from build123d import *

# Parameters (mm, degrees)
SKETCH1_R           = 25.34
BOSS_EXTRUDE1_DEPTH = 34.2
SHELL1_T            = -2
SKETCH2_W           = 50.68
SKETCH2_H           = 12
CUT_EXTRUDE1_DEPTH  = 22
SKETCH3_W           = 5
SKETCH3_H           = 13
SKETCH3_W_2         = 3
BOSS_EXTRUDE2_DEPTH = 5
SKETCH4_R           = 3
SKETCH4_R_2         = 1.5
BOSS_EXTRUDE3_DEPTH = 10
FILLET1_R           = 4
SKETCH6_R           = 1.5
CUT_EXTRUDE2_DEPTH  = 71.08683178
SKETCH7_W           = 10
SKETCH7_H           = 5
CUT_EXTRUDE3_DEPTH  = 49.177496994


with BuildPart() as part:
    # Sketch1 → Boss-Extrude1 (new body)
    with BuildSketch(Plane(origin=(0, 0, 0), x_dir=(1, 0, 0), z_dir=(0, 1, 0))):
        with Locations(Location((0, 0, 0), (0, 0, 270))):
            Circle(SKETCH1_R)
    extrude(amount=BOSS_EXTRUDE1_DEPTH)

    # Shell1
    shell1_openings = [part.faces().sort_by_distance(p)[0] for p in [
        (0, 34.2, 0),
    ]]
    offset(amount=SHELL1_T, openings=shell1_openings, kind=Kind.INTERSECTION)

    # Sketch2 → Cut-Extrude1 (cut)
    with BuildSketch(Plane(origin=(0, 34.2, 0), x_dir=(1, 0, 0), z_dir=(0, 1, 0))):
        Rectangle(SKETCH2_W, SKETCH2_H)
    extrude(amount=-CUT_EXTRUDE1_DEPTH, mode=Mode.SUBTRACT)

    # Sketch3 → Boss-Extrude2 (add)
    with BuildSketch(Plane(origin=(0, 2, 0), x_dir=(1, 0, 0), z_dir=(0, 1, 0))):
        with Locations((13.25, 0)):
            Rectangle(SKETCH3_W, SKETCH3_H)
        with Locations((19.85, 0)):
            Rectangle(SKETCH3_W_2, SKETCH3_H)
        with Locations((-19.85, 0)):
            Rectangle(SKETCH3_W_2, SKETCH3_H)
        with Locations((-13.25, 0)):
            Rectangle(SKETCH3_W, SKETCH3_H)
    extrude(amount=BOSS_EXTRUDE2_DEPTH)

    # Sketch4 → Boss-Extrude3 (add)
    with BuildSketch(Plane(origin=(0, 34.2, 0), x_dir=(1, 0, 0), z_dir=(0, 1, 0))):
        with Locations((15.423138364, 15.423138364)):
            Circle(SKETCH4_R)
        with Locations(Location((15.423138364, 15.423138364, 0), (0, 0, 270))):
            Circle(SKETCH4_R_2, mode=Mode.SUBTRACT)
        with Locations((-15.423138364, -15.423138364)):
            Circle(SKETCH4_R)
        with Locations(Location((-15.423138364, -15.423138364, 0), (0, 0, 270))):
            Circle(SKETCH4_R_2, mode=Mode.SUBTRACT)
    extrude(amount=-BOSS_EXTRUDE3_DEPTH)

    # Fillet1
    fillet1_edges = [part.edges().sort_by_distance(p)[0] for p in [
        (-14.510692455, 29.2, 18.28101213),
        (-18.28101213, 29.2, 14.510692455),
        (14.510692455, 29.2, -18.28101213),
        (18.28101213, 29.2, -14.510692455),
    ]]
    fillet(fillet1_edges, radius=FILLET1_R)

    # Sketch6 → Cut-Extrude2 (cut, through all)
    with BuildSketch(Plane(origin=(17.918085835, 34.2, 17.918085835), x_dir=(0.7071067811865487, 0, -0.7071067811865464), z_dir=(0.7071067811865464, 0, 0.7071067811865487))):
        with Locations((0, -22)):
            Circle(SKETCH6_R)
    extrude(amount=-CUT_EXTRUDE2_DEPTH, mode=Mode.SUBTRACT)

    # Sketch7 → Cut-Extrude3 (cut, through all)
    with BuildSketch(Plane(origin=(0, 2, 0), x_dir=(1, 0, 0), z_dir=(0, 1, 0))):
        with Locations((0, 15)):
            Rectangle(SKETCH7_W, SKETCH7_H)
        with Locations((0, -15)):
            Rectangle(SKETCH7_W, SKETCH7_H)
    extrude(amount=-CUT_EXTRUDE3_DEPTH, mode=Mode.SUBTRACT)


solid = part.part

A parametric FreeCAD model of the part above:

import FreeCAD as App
import Part
import Sketcher
from FreeCAD import Vector


def edges_at(feature, points):
    """Names of the edges that pass closest to the given points."""
    edges = feature.Shape.Edges
    near = lambda p: min(range(len(edges)), key=lambda i: edges[i].distToShape(Part.Vertex(*p))[0])
    return sorted({f"Edge{near(p) + 1}" for p in points})


def faces_at(feature, points):
    """Names of the faces that lie closest to the given points."""
    faces = feature.Shape.Faces
    near = lambda p: min(range(len(faces)), key=lambda i: faces[i].distToShape(Part.Vertex(*p))[0])
    return sorted({f"Face{near(p) + 1}" for p in points})


def add_polygon(sketch, points):
    """Adds a closed chain of lines whose ends are joined by coincident constraints."""
    first, n = sketch.GeometryCount, len(points)
    for a, b in zip(points, points[1:] + points[:1]):
        sketch.addGeometry(Part.LineSegment(App.Vector(*a, 0), App.Vector(*b, 0)), False)
    for i in range(n):
        sketch.addConstraint(Sketcher.Constraint("Coincident", first + i, 2, first + (i + 1) % n, 1))

doc = App.newDocument("Part")
body = doc.addObject("PartDesign::Body", "Body")

# Sketch on XZ plane
sketch1 = body.newObject("Sketcher::SketchObject", "Sketch")
sketch1.AttachmentSupport = (doc.getObject("XZ_Plane"), [""])
sketch1.MapMode = "FlatFace"
sketch1.addGeometry(Part.Circle(Vector(0, 0, 0), Vector(0, 0, 1), 25), False)
sketch1.addConstraint([
    Sketcher.Constraint("Coincident", 0, 3, -1, 1),
    Sketcher.Constraint("Diameter", 0, 50.68),
])
pad1 = body.newObject("PartDesign::Pad", "Pad")
pad1.Profile = sketch1
pad1.Length = 34.2
pad1.Reversed = True
doc.recompute()

thickness = body.newObject("PartDesign::Thickness", "Thickness")
thickness.Base = (pad1, faces_at(pad1, [(0, 34.2, 0)]))
thickness.Value = 2
thickness.Reversed = True
thickness.Join = "Intersection"

# Sketch on XZ plane
sketch2 = body.newObject("Sketcher::SketchObject", "Sketch001")
sketch2.AttachmentSupport = (doc.getObject("XZ_Plane"), [""])
sketch2.MapMode = "FlatFace"
sketch2.AttachmentOffset = App.Placement(Vector(0, 0, -34.2), App.Rotation())
add_polygon(sketch2, [(-25, -6), (-25, 6), (25, 6), (25, -6)])  # lines 0-3
sketch2.addConstraint([
    Sketcher.Constraint("Vertical", 0),
    Sketcher.Constraint("Horizontal", 1),
    Sketcher.Constraint("Vertical", 2),
    Sketcher.Constraint("Horizontal", 3),
    Sketcher.Constraint("Symmetric", 0, 2, 2, 2, -1, 1),
    Sketcher.Constraint("DistanceY", 0, 1, 0, 2, 12.0),
    Sketcher.Constraint("DistanceX", 1, 1, 1, 2, 50.68),
])
pocket1 = body.newObject("PartDesign::Pocket", "Pocket")
pocket1.Profile = sketch2
pocket1.Length = 22
pocket1.Reversed = True

# Sketch on XZ plane
sketch3 = body.newObject("Sketcher::SketchObject", "Sketch002")
sketch3.AttachmentSupport = (doc.getObject("XZ_Plane"), [""])
sketch3.MapMode = "FlatFace"
sketch3.AttachmentOffset = App.Placement(Vector(0, 0, -2), App.Rotation())
add_polygon(sketch3, [(10.8, -6.5), (10.8, 6.5), (15.8, 6.5), (15.8, -6.5)])  # lines 0-3
add_polygon(sketch3, [(18.4, -6.5), (18.4, 6.5), (21.4, 6.5), (21.4, -6.5)])  # lines 4-7
add_polygon(sketch3, [(-21.4, -6.5), (-21.4, 6.5), (-18.4, 6.5), (-18.4, -6.5)])  # lines 8-11
add_polygon(sketch3, [(-15.8, -6.5), (-15.8, 6.5), (-10.8, 6.5), (-10.8, -6.5)])  # lines 12-15
sketch3.addConstraint([
    Sketcher.Constraint("Vertical", 0),
    Sketcher.Constraint("Horizontal", 1),
    Sketcher.Constraint("Vertical", 2),
    Sketcher.Constraint("Horizontal", 3),
    Sketcher.Constraint("Vertical", 4),
    Sketcher.Constraint("Horizontal", 5),
    Sketcher.Constraint("Vertical", 6),
    Sketcher.Constraint("Horizontal", 7),
    Sketcher.Constraint("Vertical", 8),
    Sketcher.Constraint("Horizontal", 9),
    Sketcher.Constraint("Vertical", 10),
    Sketcher.Constraint("Horizontal", 11),
    Sketcher.Constraint("Vertical", 12),
    Sketcher.Constraint("Horizontal", 13),
    Sketcher.Constraint("Vertical", 14),
    Sketcher.Constraint("Horizontal", 15),
    Sketcher.Constraint("Symmetric", 6, 2, 8, 2, -1, 1),
    Sketcher.Constraint("Symmetric", 4, 2, 10, 2, -1, 1),
    Sketcher.Constraint("Symmetric", 2, 2, 12, 2, -1, 1),
    Sketcher.Constraint("Symmetric", 0, 2, 14, 2, -1, 1),
    Sketcher.Constraint("Horizontal", 1, 2, 4, 2),
    Sketcher.Constraint("Horizontal", 3, 2, 6, 2),
    Sketcher.Constraint("Horizontal", 5, 2, 8, 2),
    Sketcher.Constraint("DistanceX", 1, 1, 1, 2, 5.0),
    Sketcher.Constraint("DistanceX", 5, 1, 5, 2, 3.0),
    Sketcher.Constraint("DistanceY", 0, 1, 0, 2, 13.0),
    Sketcher.Constraint("DistanceX", 1, 2, 4, 2, 2.6),
    Sketcher.Constraint("DistanceX", 8, 2, 0, 2, 32.1),
])
pad2 = body.newObject("PartDesign::Pad", "Pad001")
pad2.Profile = sketch3
pad2.Length = 5
pad2.Reversed = True

# Sketch on XZ plane
sketch4 = body.newObject("Sketcher::SketchObject", "Sketch003")
sketch4.AttachmentSupport = (doc.getObject("XZ_Plane"), [""])
sketch4.MapMode = "FlatFace"
sketch4.AttachmentOffset = App.Placement(Vector(0, 0, -34.2), App.Rotation())
sketch4.addGeometry([
    Part.Circle(Vector(15.4, -15.4, 0), Vector(0, 0, 1), 3),
    Part.Circle(Vector(15.4, -15.4, 0), Vector(0, 0, 1), 1.5),
    Part.Circle(Vector(-15.4, 15.4, 0), Vector(0, 0, 1), 3),
    Part.Circle(Vector(-15.4, 15.4, 0), Vector(0, 0, 1), 1.5),
], False)
sketch4.addConstraint([
    Sketcher.Constraint("Coincident", 1, 3, 0, 3),
    Sketcher.Constraint("Coincident", 3, 3, 2, 3),
    Sketcher.Constraint("Equal", 0, 2),
    Sketcher.Constraint("Equal", 1, 3),
    Sketcher.Constraint("Symmetric", 0, 3, 2, 3, -1, 1),
    Sketcher.Constraint("Diameter", 0, 6.0),
    Sketcher.Constraint("Diameter", 1, 3.0),
    Sketcher.Constraint("DistanceX", -1, 1, 0, 3, 15.423138),
    Sketcher.Constraint("DistanceY", 0, 3, -1, 1, 15.423138),
])
pad3 = body.newObject("PartDesign::Pad", "Pad002")
pad3.Profile = sketch4
pad3.Length = 10
doc.recompute()

fillet = body.newObject("PartDesign::Fillet", "Fillet")
fillet.Base = (pad3, edges_at(pad3, [
    (-14.511, 29.2, 18.281),
    (-18.281, 29.2, 14.511),
    (14.511, 29.2, -18.281),
    (18.281, 29.2, -14.511),
]))
fillet.Radius = 4

# Sketch on an angled plane
sketch5 = body.newObject("Sketcher::SketchObject", "Sketch004")
sketch5.Placement = App.Placement(Vector(17.918086, 34.2, 17.918086), App.Rotation(Vector(0.707106781, 0, -0.707106781), Vector(0, 0.999999999, 0), Vector(0.707106781, 0, 0.707106781), "ZXY"))
sketch5.addGeometry(Part.Circle(Vector(0, -22, 0), Vector(0, 0, 1), 1.5), False)
sketch5.addConstraint([
    Sketcher.Constraint("PointOnObject", 0, 3, -2),
    Sketcher.Constraint("Diameter", 0, 3.0),
    Sketcher.Constraint("DistanceY", 0, 3, -1, 1, 22.0),
])
pocket2 = body.newObject("PartDesign::Pocket", "Pocket001")
pocket2.Profile = sketch5
pocket2.Type = "ThroughAll"

# Sketch on XZ plane
sketch6 = body.newObject("Sketcher::SketchObject", "Sketch005")
sketch6.AttachmentSupport = (doc.getObject("XZ_Plane"), [""])
sketch6.MapMode = "FlatFace"
sketch6.AttachmentOffset = App.Placement(Vector(0, 0, -2), App.Rotation())
add_polygon(sketch6, [(-5, -18), (-5, -12), (5, -12), (5, -18)])  # lines 0-3
add_polygon(sketch6, [(-5, 12), (-5, 18), (5, 18), (5, 12)])  # lines 4-7
sketch6.addConstraint([
    Sketcher.Constraint("Vertical", 0),
    Sketcher.Constraint("Horizontal", 1),
    Sketcher.Constraint("Vertical", 2),
    Sketcher.Constraint("Horizontal", 3),
    Sketcher.Constraint("Vertical", 4),
    Sketcher.Constraint("Horizontal", 5),
    Sketcher.Constraint("Vertical", 6),
    Sketcher.Constraint("Horizontal", 7),
    Sketcher.Constraint("Symmetric", 2, 2, 4, 2, -1, 1),
    Sketcher.Constraint("Symmetric", 0, 2, 6, 2, -1, 1),
    Sketcher.Constraint("Vertical", 3, 2, 4, 2),
    Sketcher.Constraint("DistanceX", 1, 1, 1, 2, 10.0),
    Sketcher.Constraint("DistanceY", 0, 1, 0, 2, 5.0),
    Sketcher.Constraint("DistanceY", 0, 2, 4, 2, 30.0),
])
pocket3 = body.newObject("PartDesign::Pocket", "Pocket002")
pocket3.Profile = sketch6
pocket3.Type = "ThroughAll"
pocket3.Reversed = True

doc.recompute()
